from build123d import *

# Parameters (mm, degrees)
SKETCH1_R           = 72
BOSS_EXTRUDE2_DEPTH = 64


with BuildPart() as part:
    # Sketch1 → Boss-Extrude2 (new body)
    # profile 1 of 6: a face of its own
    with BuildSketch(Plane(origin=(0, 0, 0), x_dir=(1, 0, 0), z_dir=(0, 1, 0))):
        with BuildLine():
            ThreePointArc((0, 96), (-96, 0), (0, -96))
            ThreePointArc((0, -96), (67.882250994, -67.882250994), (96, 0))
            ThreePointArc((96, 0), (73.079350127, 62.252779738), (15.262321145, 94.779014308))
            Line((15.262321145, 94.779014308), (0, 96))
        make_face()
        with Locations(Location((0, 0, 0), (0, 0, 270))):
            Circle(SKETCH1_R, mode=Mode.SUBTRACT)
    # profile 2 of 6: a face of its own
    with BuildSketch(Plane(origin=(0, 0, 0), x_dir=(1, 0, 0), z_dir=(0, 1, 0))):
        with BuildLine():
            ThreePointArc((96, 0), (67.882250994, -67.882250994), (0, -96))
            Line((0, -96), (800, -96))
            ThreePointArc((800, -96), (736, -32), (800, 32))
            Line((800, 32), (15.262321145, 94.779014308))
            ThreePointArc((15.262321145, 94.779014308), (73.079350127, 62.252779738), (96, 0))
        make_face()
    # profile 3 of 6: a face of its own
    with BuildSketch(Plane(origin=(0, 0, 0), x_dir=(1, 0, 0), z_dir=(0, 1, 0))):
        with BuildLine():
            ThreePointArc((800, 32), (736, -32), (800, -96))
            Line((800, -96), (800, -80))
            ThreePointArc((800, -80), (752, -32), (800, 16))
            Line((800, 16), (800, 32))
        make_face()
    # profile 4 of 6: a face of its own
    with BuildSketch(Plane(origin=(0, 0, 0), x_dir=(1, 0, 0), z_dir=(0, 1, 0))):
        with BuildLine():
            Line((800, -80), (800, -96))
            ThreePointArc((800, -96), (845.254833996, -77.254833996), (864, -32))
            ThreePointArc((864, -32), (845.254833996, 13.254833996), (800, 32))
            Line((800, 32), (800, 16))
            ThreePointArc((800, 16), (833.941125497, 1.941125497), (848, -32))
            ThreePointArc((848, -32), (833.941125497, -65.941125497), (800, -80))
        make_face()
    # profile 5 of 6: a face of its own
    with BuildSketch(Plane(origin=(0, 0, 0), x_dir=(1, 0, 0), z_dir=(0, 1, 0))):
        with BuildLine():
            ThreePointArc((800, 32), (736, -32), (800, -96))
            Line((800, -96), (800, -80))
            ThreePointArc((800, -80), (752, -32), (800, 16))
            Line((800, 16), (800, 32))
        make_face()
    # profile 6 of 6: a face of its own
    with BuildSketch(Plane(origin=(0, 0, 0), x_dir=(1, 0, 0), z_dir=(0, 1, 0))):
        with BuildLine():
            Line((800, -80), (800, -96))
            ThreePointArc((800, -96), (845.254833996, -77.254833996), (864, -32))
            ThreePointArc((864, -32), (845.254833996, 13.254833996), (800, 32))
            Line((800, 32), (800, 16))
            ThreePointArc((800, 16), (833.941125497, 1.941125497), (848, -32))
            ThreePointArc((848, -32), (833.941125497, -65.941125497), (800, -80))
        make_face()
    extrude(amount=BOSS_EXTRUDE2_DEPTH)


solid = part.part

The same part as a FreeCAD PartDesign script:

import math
import FreeCAD as App
import Part
import Sketcher

V = App.Vector

doc = App.newDocument("Part")
body = doc.addObject("PartDesign::Body", "Body")

# Sketch on XZ plane
sketch1 = body.newObject("Sketcher::SketchObject", "Sketch")
sketch1.AttachmentSupport = (doc.getObject("XZ_Plane"), [""])
sketch1.MapMode = "FlatFace"
sketch1.addGeometry(Part.ArcOfCircle(Part.Circle(V(0, 0, 0), V(0, 0, 1), 96), math.radians(90), math.radians(270)), False)
sketch1.addGeometry(Part.LineSegment(V(0, 96, 0), V(800, 96, 0)), False)
sketch1.addGeometry(Part.ArcOfCircle(Part.Circle(V(800, 32, 0), V(0, 0, 1), 64), math.radians(0), math.radians(90)), False)
sketch1.addGeometry(Part.ArcOfCircle(Part.Circle(V(800, 32, 0), V(0, 0, 1), 64), math.radians(-90), math.radians(0)), False)
sketch1.addGeometry(Part.LineSegment(V(800, -32, 0), V(15, -95, 0)), False)
sketch1.addGeometry(Part.LineSegment(V(15, -95, 0), V(0, -96, 0)), False)
sketch1.addGeometry(Part.Circle(V(0, 0, 0), V(0, 0, 1), 72), False)
sketch1.addGeometry(Part.ArcOfCircle(Part.Circle(V(800, 32, 0), V(0, 0, 1), 48), math.radians(90), math.radians(270)), False)
sketch1.addGeometry(Part.ArcOfCircle(Part.Circle(V(800, 32, 0), V(0, 0, 1), 48), math.radians(-90), math.radians(0)), False)
sketch1.addGeometry(Part.ArcOfCircle(Part.Circle(V(800, 32, 0), V(0, 0, 1), 48), math.radians(0), math.radians(90)), False)
sketch1.addConstraint(Sketcher.Constraint("Tangent", 0, 1, 1, 1))
sketch1.addConstraint(Sketcher.Constraint("Tangent", 1, 2, 2, 2))
sketch1.addConstraint(Sketcher.Constraint("Tangent", 2, 1, 3, 2))
sketch1.addConstraint(Sketcher.Constraint("Coincident", 3, 1, 4, 1))
sketch1.addConstraint(Sketcher.Constraint("Coincident", 4, 2, 5, 1))
sketch1.addConstraint(Sketcher.Constraint("Coincident", 5, 2, 0, 2))
sketch1.addConstraint(Sketcher.Constraint("Tangent", 7, 2, 8, 1))
sketch1.addConstraint(Sketcher.Constraint("Tangent", 8, 2, 9, 1))
sketch1.addConstraint(Sketcher.Constraint("Tangent", 9, 2, 7, 1))
sketch1.addConstraint(Sketcher.Constraint("Horizontal", 1))
sketch1.addConstraint(Sketcher.Constraint("Coincident", 0, 3, -1, 1))
sketch1.addConstraint(Sketcher.Constraint("Coincident", 6, 3, -1, 1))
sketch1.addConstraint(Sketcher.Constraint("Coincident", 7, 3, 2, 3))
sketch1.addConstraint(Sketcher.Constraint("Equal", 2, 3))
sketch1.addConstraint(Sketcher.Constraint("PointOnObject", 5, 2, -2))
sketch1.addConstraint(Sketcher.Constraint("Parallel", 4, 5))
sketch1.addConstraint(Sketcher.Constraint("Horizontal", 9, 3, 2, 1))
sketch1.addConstraint(Sketcher.Constraint("Horizontal", 2, 1, 8, 2))
sketch1.addConstraint(Sketcher.Constraint("Vertical", 1, 2, 3, 1))
sketch1.addConstraint(Sketcher.Constraint("Vertical", 3, 1, 7, 2))
sketch1.addConstraint(Sketcher.Constraint("Vertical", 7, 2, 9, 2))
sketch1.addConstraint(Sketcher.Constraint("Diameter", 6, 144.0))
sketch1.addConstraint(Sketcher.Constraint("Radius", 0, 96.0))
sketch1.addConstraint(Sketcher.Constraint("Radius", 2, 64.0))
sketch1.addConstraint(Sketcher.Constraint("Radius", 7, 48.0))
sketch1.addConstraint(Sketcher.Constraint("DistanceX", 1, 1, 1, 2, 800.0))
sketch1.addConstraint(Sketcher.Constraint("DistanceX", -1, 1, 4, 2, 15.262321))
pad1 = body.newObject("PartDesign::Pad", "Pad")
pad1.Profile = sketch1
pad1.Length = 64
pad1.Reversed = True

doc.recompute()
